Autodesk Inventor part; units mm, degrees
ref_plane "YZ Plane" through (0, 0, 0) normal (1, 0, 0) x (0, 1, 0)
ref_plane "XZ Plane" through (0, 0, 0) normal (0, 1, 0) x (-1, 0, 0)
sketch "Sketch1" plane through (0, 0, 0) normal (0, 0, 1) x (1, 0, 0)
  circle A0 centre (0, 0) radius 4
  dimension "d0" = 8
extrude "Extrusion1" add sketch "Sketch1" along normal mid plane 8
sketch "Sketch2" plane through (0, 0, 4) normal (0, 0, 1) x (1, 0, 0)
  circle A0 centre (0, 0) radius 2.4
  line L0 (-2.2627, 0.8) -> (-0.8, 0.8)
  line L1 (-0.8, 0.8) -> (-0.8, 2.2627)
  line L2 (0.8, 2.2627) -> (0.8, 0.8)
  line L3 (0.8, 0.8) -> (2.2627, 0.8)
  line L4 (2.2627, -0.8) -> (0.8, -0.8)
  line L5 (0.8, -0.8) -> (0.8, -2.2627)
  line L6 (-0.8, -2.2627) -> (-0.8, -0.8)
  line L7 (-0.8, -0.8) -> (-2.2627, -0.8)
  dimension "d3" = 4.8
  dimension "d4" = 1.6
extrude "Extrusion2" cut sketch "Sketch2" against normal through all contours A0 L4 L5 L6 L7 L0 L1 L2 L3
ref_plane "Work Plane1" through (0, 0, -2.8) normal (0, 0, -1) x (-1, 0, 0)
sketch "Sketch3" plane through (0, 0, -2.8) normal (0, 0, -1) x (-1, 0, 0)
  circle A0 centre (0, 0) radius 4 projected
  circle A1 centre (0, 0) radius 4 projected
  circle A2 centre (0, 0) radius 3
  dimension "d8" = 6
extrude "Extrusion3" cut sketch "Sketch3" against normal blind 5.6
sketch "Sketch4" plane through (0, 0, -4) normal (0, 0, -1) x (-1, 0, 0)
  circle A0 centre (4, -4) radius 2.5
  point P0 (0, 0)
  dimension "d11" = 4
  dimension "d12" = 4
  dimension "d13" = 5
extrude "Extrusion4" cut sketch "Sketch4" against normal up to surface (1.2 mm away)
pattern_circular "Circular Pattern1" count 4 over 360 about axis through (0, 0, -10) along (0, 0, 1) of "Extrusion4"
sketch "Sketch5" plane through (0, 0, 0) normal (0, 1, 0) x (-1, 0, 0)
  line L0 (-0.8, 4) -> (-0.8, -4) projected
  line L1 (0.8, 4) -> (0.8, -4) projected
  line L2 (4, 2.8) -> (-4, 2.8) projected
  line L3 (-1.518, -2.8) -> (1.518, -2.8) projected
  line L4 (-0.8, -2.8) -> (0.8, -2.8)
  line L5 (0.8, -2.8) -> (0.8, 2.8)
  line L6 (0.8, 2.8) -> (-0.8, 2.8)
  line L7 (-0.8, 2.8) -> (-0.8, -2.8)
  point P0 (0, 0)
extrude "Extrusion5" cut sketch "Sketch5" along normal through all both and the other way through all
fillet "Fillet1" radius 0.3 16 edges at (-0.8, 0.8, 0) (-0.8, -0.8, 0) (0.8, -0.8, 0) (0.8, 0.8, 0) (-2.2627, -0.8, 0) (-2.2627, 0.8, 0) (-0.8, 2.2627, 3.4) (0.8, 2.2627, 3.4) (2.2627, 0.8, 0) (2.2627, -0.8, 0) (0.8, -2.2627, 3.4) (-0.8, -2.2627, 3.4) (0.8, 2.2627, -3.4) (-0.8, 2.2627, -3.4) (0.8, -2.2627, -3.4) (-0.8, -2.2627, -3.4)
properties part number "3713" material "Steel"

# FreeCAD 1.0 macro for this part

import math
import FreeCAD as App
import Part
import Sketcher

V = App.Vector


def edges_at(feature, points):
    """Names of the edges that pass closest to the given points."""
    edges = feature.Shape.Edges
    near = lambda p: min(range(len(edges)), key=lambda i: edges[i].distToShape(Part.Vertex(*p))[0])
    return sorted({f"Edge{near(p) + 1}" for p in points})

doc = App.newDocument("Part")
body = doc.addObject("PartDesign::Body", "Body")

# Sketch on XY plane
sketch1 = doc.addObject("Sketcher::SketchObject", "Sketch")
body.addObject(sketch1)
sketch1.AttachmentSupport = (doc.XY_Plane, [""])
sketch1.MapMode = "FlatFace"
sketch1.addGeometry(Part.Circle(V(0, 0, 0), V(0, 0, 1), 4), False)
sketch1.addConstraint(Sketcher.Constraint("Coincident", 0, 3, -1, 1))
sketch1.addConstraint(Sketcher.Constraint("Diameter", 0, 8.0))
pad1 = doc.addObject("PartDesign::Pad", "Pad")
body.addObject(pad1)
pad1.Profile = sketch1
pad1.Length = 8
pad1.Midplane = True

# Sketch on XY plane
sketch2 = doc.addObject("Sketcher::SketchObject", "Sketch001")
body.addObject(sketch2)
sketch2.AttachmentSupport = (doc.XY_Plane, [""])
sketch2.MapMode = "FlatFace"
sketch2.AttachmentOffset = App.Placement(V(0, 0, 4), App.Rotation())
sketch2.addGeometry(Part.ArcOfCircle(Part.Circle(V(0, 0, 0), V(0, 0, 1), 2.4), math.radians(-19), math.radians(19)), False)
sketch2.addGeometry(Part.LineSegment(V(2.3, 0.8, 0), V(0.8, 0.8, 0)), False)
sketch2.addGeometry(Part.LineSegment(V(0.8, 0.8, 0), V(0.8, 2.3, 0)), False)
sketch2.addGeometry(Part.ArcOfCircle(Part.Circle(V(0, 0, 0), V(0, 0, 1), 2.4), math.radians(71), math.radians(109)), False)
sketch2.addGeometry(Part.LineSegment(V(-0.8, 2.3, 0), V(-0.8, 0.8, 0)), False)
sketch2.addGeometry(Part.LineSegment(V(-0.8, 0.8, 0), V(-2.3, 0.8, 0)), False)
sketch2.addGeometry(Part.ArcOfCircle(Part.Circle(V(0, 0, 0), V(0, 0, 1), 2.4), math.radians(161), math.radians(199)), False)
sketch2.addGeometry(Part.LineSegment(V(-2.3, -0.8, 0), V(-0.8, -0.8, 0)), False)
sketch2.addGeometry(Part.LineSegment(V(-0.8, -0.8, 0), V(-0.8, -2.3, 0)), False)
sketch2.addGeometry(Part.ArcOfCircle(Part.Circle(V(0, 0, 0), V(0, 0, 1), 2.4), math.radians(-109), math.radians(-71)), False)
sketch2.addGeometry(Part.LineSegment(V(0.8, -2.3, 0), V(0.8, -0.8, 0)), False)
sketch2.addGeometry(Part.LineSegment(V(0.8, -0.8, 0), V(2.3, -0.8, 0)), False)
sketch2.addConstraint(Sketcher.Constraint("Coincident", 0, 2, 1, 1))
sketch2.addConstraint(Sketcher.Constraint("Coincident", 1, 2, 2, 1))
sketch2.addConstraint(Sketcher.Constraint("Coincident", 2, 2, 3, 1))
sketch2.addConstraint(Sketcher.Constraint("Coincident", 3, 2, 4, 1))
sketch2.addConstraint(Sketcher.Constraint("Coincident", 4, 2, 5, 1))
sketch2.addConstraint(Sketcher.Constraint("Coincident", 5, 2, 6, 1))
sketch2.addConstraint(Sketcher.Constraint("Coincident", 6, 2, 7, 1))
sketch2.addConstraint(Sketcher.Constraint("Coincident", 7, 2, 8, 1))
sketch2.addConstraint(Sketcher.Constraint("Coincident", 8, 2, 9, 1))
sketch2.addConstraint(Sketcher.Constraint("Coincident", 9, 2, 10, 1))
sketch2.addConstraint(Sketcher.Constraint("Coincident", 10, 2, 11, 1))
sketch2.addConstraint(Sketcher.Constraint("Coincident", 11, 2, 0, 1))
sketch2.addConstraint(Sketcher.Constraint("Horizontal", 1))
sketch2.addConstraint(Sketcher.Constraint("Vertical", 2))
sketch2.addConstraint(Sketcher.Constraint("Vertical", 4))
sketch2.addConstraint(Sketcher.Constraint("Horizontal", 5))
sketch2.addConstraint(Sketcher.Constraint("Horizontal", 7))
sketch2.addConstraint(Sketcher.Constraint("Vertical", 8))
sketch2.addConstraint(Sketcher.Constraint("Vertical", 10))
sketch2.addConstraint(Sketcher.Constraint("Horizontal", 11))
sketch2.addConstraint(Sketcher.Constraint("Coincident", 0, 3, -1, 1))
sketch2.addConstraint(Sketcher.Constraint("Coincident", 3, 3, -1, 1))
sketch2.addConstraint(Sketcher.Constraint("Coincident", 6, 3, -1, 1))
sketch2.addConstraint(Sketcher.Constraint("Coincident", 9, 3, -1, 1))
sketch2.addConstraint(Sketcher.Constraint("Equal", 0, 3))
sketch2.addConstraint(Sketcher.Constraint("Equal", 3, 6))
sketch2.addConstraint(Sketcher.Constraint("Equal", 6, 9))
sketch2.addConstraint(Sketcher.Constraint("Symmetric", 1, 2, 7, 2, -1, 1))
sketch2.addConstraint(Sketcher.Constraint("Symmetric", 4, 2, 10, 2, -1, 1))
sketch2.addConstraint(Sketcher.Constraint("Symmetric", 1, 2, 4, 2, -2))
sketch2.addConstraint(Sketcher.Constraint("Equal", 11, 2))
sketch2.addConstraint(Sketcher.Constraint("Radius", 0, 2.4))
sketch2.addConstraint(Sketcher.Constraint("DistanceX", 3, 2, 2, 2, 1.6))
pocket1 = doc.addObject("PartDesign::Pocket", "Pocket")
body.addObject(pocket1)
pocket1.Profile = sketch2
pocket1.Type = "ThroughAll"

# Sketch on XY plane
sketch3 = doc.addObject("Sketcher::SketchObject", "Sketch002")
body.addObject(sketch3)
sketch3.AttachmentSupport = (doc.XY_Plane, [""])
sketch3.MapMode = "FlatFace"
sketch3.AttachmentOffset = App.Placement(V(0, 0, -2.8), App.Rotation())
sketch3.addGeometry(Part.Circle(V(0, 0, 0), V(0, 0, 1), 4), False)
sketch3.addGeometry(Part.Circle(V(0, 0, 0), V(0, 0, 1), 3), False)
sketch3.addConstraint(Sketcher.Constraint("Coincident", 0, 3, -1, 1))
sketch3.addConstraint(Sketcher.Constraint("Coincident", 1, 3, -1, 1))
sketch3.addConstraint(Sketcher.Constraint("Diameter", 1, 6.0))
sketch3.addConstraint(Sketcher.Constraint("Diameter", 0, 8.0))
pocket2 = doc.addObject("PartDesign::Pocket", "Pocket001")
body.addObject(pocket2)
pocket2.Profile = sketch3
pocket2.Length = 5.6
pocket2.Reversed = True

# Sketch on XY plane
sketch4 = doc.addObject("Sketcher::SketchObject", "Sketch003")
body.addObject(sketch4)
sketch4.AttachmentSupport = (doc.XY_Plane, [""])
sketch4.MapMode = "FlatFace"
sketch4.AttachmentOffset = App.Placement(V(0, 0, -4), App.Rotation())
sketch4.addGeometry(Part.Circle(V(-4, -4, 0), V(0, 0, 1), 2.5), False)
sketch4.addConstraint(Sketcher.Constraint("Diameter", 0, 5.0))
sketch4.addConstraint(Sketcher.Constraint("DistanceX", 0, 3, -1, 1, 4.0))
sketch4.addConstraint(Sketcher.Constraint("DistanceY", 0, 3, -1, 1, 4.0))
pocket3 = doc.addObject("PartDesign::Pocket", "Pocket002")
body.addObject(pocket3)
pocket3.Profile = sketch4
pocket3.Length = 1.2
pocket3.Reversed = True
doc.recompute()

polarpattern = doc.addObject("PartDesign::PolarPattern", "PolarPattern")
body.addObject(polarpattern)
polarpattern.Originals = [pocket3]
polarpattern.Axis = (doc.Z_Axis, [""])
polarpattern.Angle = 360
polarpattern.Occurrences = 4
body.Tip = polarpattern

# Sketch on XZ plane
sketch5 = doc.addObject("Sketcher::SketchObject", "Sketch004")
body.addObject(sketch5)
sketch5.AttachmentSupport = (doc.XZ_Plane, [""])
sketch5.MapMode = "FlatFace"
sketch5.addGeometry(Part.LineSegment(V(-0.8, 2.8, 0), V(0.8, 2.8, 0)), False)
sketch5.addGeometry(Part.LineSegment(V(0.8, 2.8, 0), V(0.8, -2.8, 0)), False)
sketch5.addGeometry(Part.LineSegment(V(0.8, -2.8, 0), V(-0.8, -2.8, 0)), False)
sketch5.addGeometry(Part.LineSegment(V(-0.8, -2.8, 0), V(-0.8, 2.8, 0)), False)
sketch5.addConstraint(Sketcher.Constraint("Coincident", 0, 2, 1, 1))
sketch5.addConstraint(Sketcher.Constraint("Coincident", 1, 2, 2, 1))
sketch5.addConstraint(Sketcher.Constraint("Coincident", 2, 2, 3, 1))
sketch5.addConstraint(Sketcher.Constraint("Coincident", 3, 2, 0, 1))
sketch5.addConstraint(Sketcher.Constraint("Horizontal", 0))
sketch5.addConstraint(Sketcher.Constraint("Vertical", 1))
sketch5.addConstraint(Sketcher.Constraint("Horizontal", 2))
sketch5.addConstraint(Sketcher.Constraint("Vertical", 3))
sketch5.addConstraint(Sketcher.Constraint("Symmetric", 0, 2, 2, 2, -1, 1))
sketch5.addConstraint(Sketcher.Constraint("DistanceX", 0, 1, 0, 2, 1.6))
sketch5.addConstraint(Sketcher.Constraint("DistanceY", 1, 2, 1, 1, 5.6))
pocket4 = doc.addObject("PartDesign::Pocket", "Pocket003")
body.addObject(pocket4)
pocket4.Profile = sketch5
pocket4.Type = "ThroughAll"
pocket4.Midplane = True
doc.recompute()

fillet = doc.addObject("PartDesign::Fillet", "Fillet")
body.addObject(fillet)
fillet.Base = (pocket4, edges_at(pocket4, [
    (-0.8, 0.8, 0),
    (-0.8, -0.8, 0),
    (0.8, -0.8, 0),
    (0.8, 0.8, 0),
    (-2.263, -0.8, 0),
    (-2.263, 0.8, 0),
    (-0.8, 2.263, 3.4),
    (0.8, 2.263, 3.4),
    (2.263, 0.8, 0),
    (2.263, -0.8, 0),
    (0.8, -2.263, 3.4),
    (-0.8, -2.263, 3.4),
    (0.8, 2.263, -3.4),
    (-0.8, 2.263, -3.4),
    (0.8, -2.263, -3.4),
    (-0.8, -2.263, -3.4),
]))
fillet.Radius = 0.3

doc.recompute()
